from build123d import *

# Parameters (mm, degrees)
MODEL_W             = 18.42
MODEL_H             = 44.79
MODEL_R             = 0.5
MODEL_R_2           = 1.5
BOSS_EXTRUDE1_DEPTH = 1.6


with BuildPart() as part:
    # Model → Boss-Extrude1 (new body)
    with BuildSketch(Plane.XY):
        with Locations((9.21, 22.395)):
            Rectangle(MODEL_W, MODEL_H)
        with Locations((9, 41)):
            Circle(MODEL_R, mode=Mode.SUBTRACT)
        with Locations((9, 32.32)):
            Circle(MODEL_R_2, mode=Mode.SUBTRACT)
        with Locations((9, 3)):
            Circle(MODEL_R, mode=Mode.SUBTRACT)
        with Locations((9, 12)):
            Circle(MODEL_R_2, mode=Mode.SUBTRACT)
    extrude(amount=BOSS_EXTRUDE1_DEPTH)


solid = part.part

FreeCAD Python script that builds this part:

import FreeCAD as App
import Part
import Sketcher

V = App.Vector


def add_polygon(sketch, points):
    """Adds a closed chain of lines whose ends are joined by coincident constraints."""
    first, n = sketch.GeometryCount, len(points)
    for a, b in zip(points, points[1:] + points[:1]):
        sketch.addGeometry(Part.LineSegment(App.Vector(*a, 0), App.Vector(*b, 0)), False)
    for i in range(n):
        sketch.addConstraint(Sketcher.Constraint("Coincident", first + i, 2, first + (i + 1) % n, 1))

doc = App.newDocument("Part")
params = doc.addObject("Spreadsheet::Sheet", "Params")
for row, (alias, value) in enumerate([
    ("sketch1_diameter", "1 mm"),
    ("sketch1_diameter2", "3 mm"),
    ("sketch1_width", "18.42 mm"),
    ("sketch1_height", "44.79 mm"),
    ("pad1_length", "1.6 mm"),
], start=1):
    params.set(f"A{row}", alias)
    params.set(f"B{row}", "=" + value)
    params.setAlias(f"B{row}", alias)

body = doc.addObject("PartDesign::Body", "Body")

# Sketch on XY plane
sketch1 = body.newObject("Sketcher::SketchObject", "Sketch")
sketch1.AttachmentSupport = (doc.getObject("XY_Plane"), [""])
sketch1.MapMode = "FlatFace"
add_polygon(sketch1, [(0, 44.8), (0, 0), (18.4, 0), (18.4, 44.8)])  # lines 0-3
sketch1.addGeometry(Part.Circle(V(9, 3, 0), V(0, 0, 1), 0.5), False)  # 4
sketch1.addGeometry(Part.Circle(V(9, 12, 0), V(0, 0, 1), 1.5), False)  # 5
sketch1.addGeometry(Part.Circle(V(9, 32.3, 0), V(0, 0, 1), 1.5), False)  # 6
sketch1.addGeometry(Part.Circle(V(9, 41, 0), V(0, 0, 1), 0.5), False)  # 7
sketch1.addConstraint([
    Sketcher.Constraint("Vertical", 0),
    Sketcher.Constraint("Horizontal", 1),
    Sketcher.Constraint("Vertical", 2),
    Sketcher.Constraint("Horizontal", 3),
    Sketcher.Constraint("Coincident", 0, 2, -1, 1),
    Sketcher.Constraint("Equal", 5, 6),
    Sketcher.Constraint("Equal", 4, 7),
    Sketcher.Constraint("Vertical", 4, 3, 5, 3),
    Sketcher.Constraint("Vertical", 5, 3, 6, 3),
    Sketcher.Constraint("Vertical", 6, 3, 7, 3),
    Sketcher.Constraint("Diameter", 4, 1.0),
    Sketcher.Constraint("Diameter", 5, 3.0),
    Sketcher.Constraint("DistanceX", -1, 1, 4, 3, 9.0),
    Sketcher.Constraint("DistanceY", -1, 1, 4, 3, 3.0),
    Sketcher.Constraint("DistanceY", -1, 1, 5, 3, 12.0),
    Sketcher.Constraint("DistanceY", -1, 1, 7, 3, 41.0),
    Sketcher.Constraint("DistanceX", 1, 1, 1, 2, 18.42),
    Sketcher.Constraint("DistanceY", 0, 2, 0, 1, 44.79),
    Sketcher.Constraint("DistanceY", -1, 1, 6, 3, 32.32),
])
sketch1.setExpression("Constraints[14]", "Params.sketch1_diameter")
sketch1.setExpression("Constraints[15]", "Params.sketch1_diameter2")
sketch1.setExpression("Constraints[20]", "Params.sketch1_width")
sketch1.setExpression("Constraints[21]", "Params.sketch1_height")
pad1 = body.newObject("PartDesign::Pad", "Pad")
pad1.Profile = sketch1
pad1.setExpression("Length", "Params.pad1_length")

doc.recompute()
